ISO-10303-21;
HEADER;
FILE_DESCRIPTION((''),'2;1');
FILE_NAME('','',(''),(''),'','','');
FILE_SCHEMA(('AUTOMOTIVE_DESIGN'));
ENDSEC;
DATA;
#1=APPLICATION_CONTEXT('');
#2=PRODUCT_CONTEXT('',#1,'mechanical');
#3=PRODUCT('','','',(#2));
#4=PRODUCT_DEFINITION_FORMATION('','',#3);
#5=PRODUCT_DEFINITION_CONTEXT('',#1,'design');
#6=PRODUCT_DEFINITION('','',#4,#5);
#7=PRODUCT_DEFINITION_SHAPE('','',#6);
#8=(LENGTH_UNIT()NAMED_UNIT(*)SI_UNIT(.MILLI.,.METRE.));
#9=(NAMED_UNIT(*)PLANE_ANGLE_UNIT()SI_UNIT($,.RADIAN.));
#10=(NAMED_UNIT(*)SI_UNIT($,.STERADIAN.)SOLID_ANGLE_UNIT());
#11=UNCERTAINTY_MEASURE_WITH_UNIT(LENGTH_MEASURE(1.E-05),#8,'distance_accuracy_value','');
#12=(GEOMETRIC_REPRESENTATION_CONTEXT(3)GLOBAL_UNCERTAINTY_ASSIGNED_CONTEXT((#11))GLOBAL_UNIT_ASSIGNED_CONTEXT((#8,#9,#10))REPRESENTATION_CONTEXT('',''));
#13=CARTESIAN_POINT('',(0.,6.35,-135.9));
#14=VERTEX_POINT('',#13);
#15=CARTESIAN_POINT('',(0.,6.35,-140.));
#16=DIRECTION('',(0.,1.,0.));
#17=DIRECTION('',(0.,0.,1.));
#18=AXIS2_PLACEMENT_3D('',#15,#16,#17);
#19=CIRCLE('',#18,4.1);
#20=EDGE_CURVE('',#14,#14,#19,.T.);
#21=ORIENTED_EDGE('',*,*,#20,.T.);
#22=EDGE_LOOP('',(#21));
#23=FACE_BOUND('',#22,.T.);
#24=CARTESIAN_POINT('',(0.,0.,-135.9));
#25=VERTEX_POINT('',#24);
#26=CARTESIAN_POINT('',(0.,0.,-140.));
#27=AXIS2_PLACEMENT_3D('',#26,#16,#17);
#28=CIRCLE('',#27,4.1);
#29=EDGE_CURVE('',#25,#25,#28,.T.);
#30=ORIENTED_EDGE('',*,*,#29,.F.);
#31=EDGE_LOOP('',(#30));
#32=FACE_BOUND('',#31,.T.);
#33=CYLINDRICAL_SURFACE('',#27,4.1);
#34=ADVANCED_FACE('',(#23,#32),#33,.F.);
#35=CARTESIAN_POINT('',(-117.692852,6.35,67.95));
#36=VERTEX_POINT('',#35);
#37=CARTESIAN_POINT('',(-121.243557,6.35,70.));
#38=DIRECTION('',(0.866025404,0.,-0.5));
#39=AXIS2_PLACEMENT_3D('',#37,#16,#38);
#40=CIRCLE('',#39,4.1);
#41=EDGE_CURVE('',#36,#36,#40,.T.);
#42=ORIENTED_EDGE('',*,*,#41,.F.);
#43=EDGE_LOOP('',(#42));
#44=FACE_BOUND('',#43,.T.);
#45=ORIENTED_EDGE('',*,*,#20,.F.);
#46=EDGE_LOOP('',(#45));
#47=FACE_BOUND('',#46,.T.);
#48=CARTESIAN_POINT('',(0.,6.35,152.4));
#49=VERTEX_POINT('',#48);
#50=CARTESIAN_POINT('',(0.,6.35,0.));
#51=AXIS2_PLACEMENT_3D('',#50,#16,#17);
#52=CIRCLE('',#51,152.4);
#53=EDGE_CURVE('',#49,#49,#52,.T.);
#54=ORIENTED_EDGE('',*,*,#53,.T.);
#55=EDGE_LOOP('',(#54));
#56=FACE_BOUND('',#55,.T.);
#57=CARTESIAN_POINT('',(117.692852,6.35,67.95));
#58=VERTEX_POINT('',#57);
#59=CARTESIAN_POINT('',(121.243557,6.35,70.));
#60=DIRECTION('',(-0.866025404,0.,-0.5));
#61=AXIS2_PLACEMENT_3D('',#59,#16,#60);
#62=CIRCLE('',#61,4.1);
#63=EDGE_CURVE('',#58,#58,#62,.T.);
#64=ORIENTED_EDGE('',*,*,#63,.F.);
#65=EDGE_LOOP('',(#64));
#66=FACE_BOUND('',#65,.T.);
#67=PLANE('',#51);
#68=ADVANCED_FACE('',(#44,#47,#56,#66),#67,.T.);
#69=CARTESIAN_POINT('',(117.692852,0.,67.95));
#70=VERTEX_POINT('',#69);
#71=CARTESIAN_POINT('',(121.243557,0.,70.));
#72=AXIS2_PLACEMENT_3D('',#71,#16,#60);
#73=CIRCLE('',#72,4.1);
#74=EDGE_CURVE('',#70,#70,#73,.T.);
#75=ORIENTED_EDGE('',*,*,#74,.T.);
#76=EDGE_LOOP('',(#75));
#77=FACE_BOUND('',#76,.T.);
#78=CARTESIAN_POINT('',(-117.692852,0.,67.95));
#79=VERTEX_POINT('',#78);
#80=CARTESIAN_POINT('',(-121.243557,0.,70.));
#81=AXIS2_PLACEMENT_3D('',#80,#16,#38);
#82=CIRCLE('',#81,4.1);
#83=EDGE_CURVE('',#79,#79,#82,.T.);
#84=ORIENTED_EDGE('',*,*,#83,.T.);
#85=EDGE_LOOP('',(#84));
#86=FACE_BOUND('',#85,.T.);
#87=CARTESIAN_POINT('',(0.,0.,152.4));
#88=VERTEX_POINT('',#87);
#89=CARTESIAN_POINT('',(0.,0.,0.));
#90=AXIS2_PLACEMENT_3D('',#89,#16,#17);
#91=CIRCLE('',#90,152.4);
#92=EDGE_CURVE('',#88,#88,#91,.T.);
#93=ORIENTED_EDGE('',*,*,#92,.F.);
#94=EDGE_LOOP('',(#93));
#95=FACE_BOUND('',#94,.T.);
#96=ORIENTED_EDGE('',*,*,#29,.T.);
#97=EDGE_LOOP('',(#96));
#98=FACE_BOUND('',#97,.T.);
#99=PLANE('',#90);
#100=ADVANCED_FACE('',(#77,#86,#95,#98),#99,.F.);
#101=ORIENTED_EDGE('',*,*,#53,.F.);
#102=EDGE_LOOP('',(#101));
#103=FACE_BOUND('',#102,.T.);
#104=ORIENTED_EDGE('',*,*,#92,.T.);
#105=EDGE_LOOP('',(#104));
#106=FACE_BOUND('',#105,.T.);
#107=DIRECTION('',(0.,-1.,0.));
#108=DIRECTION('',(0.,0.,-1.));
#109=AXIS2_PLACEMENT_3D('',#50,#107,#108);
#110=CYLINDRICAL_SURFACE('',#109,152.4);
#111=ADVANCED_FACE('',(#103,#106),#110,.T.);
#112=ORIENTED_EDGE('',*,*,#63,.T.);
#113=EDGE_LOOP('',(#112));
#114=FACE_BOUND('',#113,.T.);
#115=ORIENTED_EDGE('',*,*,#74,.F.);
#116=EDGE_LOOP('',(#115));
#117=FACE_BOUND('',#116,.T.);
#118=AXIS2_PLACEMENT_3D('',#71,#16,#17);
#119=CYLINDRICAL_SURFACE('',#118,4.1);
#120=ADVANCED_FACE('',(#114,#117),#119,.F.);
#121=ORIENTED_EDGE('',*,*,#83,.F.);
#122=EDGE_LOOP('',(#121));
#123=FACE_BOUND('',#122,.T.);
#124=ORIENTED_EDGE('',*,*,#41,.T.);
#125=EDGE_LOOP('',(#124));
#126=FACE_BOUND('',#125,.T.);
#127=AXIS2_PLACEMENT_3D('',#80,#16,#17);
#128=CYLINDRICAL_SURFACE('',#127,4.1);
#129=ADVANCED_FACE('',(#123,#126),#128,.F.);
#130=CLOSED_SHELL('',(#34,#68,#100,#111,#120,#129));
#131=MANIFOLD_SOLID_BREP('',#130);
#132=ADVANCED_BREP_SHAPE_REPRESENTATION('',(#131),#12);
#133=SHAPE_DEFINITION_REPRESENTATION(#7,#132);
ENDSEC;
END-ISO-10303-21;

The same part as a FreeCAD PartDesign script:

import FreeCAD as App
import Part
import Sketcher
Q = App.Units.Quantity

doc = App.newDocument("Part")
params = doc.addObject("Spreadsheet::Sheet", "Params")
for row, (alias, value) in enumerate([
    ("sketch1_diameter", "12 in"),
    ("pad1_length", "0.25 in"),
], start=1):
    params.set(f"A{row}", alias)
    params.set(f"B{row}", "=" + value)
    params.setAlias(f"B{row}", alias)

body = doc.addObject("PartDesign::Body", "Body")

# Sketch on XZ plane
sketch1 = body.newObject("Sketcher::SketchObject", "Sketch")
sketch1.AttachmentSupport = (doc.getObject("XZ_Plane"), [""])
sketch1.MapMode = "FlatFace"
sketch1.addGeometry(Part.Circle(App.Vector(0, 0, 0), App.Vector(0, 0, 1), 152.4), False)
sketch1.addConstraint([
    Sketcher.Constraint("Coincident", 0, 3, -1, 1),
    Sketcher.Constraint("Diameter", 0, Q("12 in")),
])
sketch1.setExpression("Constraints[1]", "Params.sketch1_diameter")
pad1 = body.newObject("PartDesign::Pad", "Pad")
pad1.Profile = sketch1
pad1.setExpression("Length", "Params.pad1_length")
pad1.Reversed = True

# Sketch on XZ plane
sketch2 = body.newObject("Sketcher::SketchObject", "Sketch001")
sketch2.AttachmentSupport = (doc.getObject("XZ_Plane"), [""])
sketch2.MapMode = "FlatFace"
sketch2.AttachmentOffset = App.Placement(App.Vector(0, 0, -0.25 * 25.4), App.Rotation())
sketch2.addGeometry(Part.Circle(App.Vector(0, -140, 0), App.Vector(0, 0, 1), 4.1), False)
sketch2.addConstraint([
    Sketcher.Constraint("PointOnObject", 0, 3, -2),
    Sketcher.Constraint("Diameter", 0, 8.2),
    Sketcher.Constraint("DistanceY", 0, 3, -1, 1, 140.0),
])
pocket1 = body.newObject("PartDesign::Pocket", "Pocket")
pocket1.Profile = sketch2
pocket1.Type = "ThroughAll"
pocket1.Reversed = True
doc.recompute()

polarpattern = body.newObject("PartDesign::PolarPattern", "PolarPattern")
polarpattern.Originals = [pocket1]
polarpattern.Axis = (doc.getObject("Y_Axis"), [""])
polarpattern.Angle = 360
polarpattern.Occurrences = 3
body.Tip = polarpattern

doc.recompute()
